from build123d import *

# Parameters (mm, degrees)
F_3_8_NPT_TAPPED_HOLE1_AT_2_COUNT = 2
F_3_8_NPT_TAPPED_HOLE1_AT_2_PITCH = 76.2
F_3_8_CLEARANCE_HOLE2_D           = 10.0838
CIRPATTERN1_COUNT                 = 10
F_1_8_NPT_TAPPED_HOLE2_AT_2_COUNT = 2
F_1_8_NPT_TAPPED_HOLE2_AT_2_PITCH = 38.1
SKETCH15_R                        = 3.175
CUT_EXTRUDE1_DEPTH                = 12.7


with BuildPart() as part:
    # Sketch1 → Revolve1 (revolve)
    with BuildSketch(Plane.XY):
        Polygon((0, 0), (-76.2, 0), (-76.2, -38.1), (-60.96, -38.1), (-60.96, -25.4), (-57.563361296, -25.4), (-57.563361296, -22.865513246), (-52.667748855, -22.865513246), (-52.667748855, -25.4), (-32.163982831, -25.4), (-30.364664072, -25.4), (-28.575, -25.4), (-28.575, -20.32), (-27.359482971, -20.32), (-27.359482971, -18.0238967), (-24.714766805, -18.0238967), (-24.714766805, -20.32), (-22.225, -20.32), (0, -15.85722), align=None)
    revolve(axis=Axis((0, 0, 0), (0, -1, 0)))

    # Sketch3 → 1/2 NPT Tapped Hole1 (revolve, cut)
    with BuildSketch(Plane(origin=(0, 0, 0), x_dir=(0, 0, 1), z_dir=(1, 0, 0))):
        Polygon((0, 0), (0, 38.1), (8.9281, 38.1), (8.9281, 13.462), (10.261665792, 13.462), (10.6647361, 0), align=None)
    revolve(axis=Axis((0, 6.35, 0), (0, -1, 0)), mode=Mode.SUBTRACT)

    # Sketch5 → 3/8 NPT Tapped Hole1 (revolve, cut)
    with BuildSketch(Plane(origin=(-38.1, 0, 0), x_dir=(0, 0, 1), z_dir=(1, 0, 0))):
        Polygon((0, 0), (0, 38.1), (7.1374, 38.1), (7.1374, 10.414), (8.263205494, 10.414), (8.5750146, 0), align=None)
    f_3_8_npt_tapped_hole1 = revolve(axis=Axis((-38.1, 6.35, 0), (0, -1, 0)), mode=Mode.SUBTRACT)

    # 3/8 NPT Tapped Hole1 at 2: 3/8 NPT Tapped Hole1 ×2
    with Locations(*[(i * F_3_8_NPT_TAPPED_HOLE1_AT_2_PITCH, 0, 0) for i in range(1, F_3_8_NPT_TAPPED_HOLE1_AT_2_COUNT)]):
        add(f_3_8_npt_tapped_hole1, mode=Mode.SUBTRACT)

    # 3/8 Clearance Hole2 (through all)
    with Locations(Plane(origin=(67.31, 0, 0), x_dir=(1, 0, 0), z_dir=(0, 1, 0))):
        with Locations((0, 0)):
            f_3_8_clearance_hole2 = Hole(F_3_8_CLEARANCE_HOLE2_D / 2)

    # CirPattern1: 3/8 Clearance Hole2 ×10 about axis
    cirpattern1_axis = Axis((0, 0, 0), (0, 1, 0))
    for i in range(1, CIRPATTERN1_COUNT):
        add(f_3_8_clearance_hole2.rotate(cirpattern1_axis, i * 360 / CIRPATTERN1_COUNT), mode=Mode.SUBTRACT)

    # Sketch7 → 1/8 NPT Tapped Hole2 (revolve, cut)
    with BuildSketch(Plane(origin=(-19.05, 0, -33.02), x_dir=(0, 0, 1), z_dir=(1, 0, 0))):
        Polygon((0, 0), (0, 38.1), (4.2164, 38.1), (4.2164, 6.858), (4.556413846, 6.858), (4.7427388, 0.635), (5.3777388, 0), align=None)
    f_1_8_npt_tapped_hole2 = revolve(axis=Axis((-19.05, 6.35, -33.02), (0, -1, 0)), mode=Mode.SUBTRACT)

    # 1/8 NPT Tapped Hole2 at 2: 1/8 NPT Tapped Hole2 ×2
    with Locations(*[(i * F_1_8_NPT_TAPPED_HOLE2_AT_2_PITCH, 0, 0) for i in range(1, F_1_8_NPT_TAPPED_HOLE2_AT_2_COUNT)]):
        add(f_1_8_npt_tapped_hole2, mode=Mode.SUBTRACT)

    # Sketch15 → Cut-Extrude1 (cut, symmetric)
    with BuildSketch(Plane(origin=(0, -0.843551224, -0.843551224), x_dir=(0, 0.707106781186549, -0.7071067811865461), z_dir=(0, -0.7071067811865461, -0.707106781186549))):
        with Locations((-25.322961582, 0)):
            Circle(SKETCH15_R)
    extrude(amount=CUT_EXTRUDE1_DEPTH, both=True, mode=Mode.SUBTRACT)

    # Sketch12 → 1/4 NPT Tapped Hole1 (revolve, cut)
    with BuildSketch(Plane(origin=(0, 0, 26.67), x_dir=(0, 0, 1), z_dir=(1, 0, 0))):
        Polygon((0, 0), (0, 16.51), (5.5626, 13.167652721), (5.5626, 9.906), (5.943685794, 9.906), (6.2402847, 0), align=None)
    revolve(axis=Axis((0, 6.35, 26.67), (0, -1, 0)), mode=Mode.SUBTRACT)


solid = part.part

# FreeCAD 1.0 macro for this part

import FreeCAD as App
import Part
import Sketcher
from FreeCAD import Vector
Q = App.Units.Quantity

doc = App.newDocument("Part")
body = doc.addObject("PartDesign::Body", "Body")

# Sketch on XY plane
sketch1 = doc.addObject("Sketcher::SketchObject", "Sketch")
body.addObject(sketch1)
sketch1.AttachmentSupport = (doc.XY_Plane, [""])
sketch1.MapMode = "FlatFace"
sketch1.addGeometry([
    Part.LineSegment(Vector(0, 0, 0), Vector(-76.2, 0, 0)),  # 0
    Part.LineSegment(Vector(-76.2, 0, 0), Vector(-76.2, -38.1, 0)),  # 1
    Part.LineSegment(Vector(-76.2, -38.1, 0), Vector(-60.96, -38.1, 0)),  # 2
    Part.LineSegment(Vector(-60.96, -38.1, 0), Vector(-60.96, -25.4, 0)),  # 3
    Part.LineSegment(Vector(-60.96, -25.4, 0), Vector(-57.563361, -25.4, 0)),  # 4
    Part.LineSegment(Vector(-57.563361, -25.4, 0), Vector(-57.563361, -22.865513, 0)),  # 5
    Part.LineSegment(Vector(-57.563361, -22.865513, 0), Vector(-52.667749, -22.865513, 0)),  # 6
    Part.LineSegment(Vector(-52.667749, -22.865513, 0), Vector(-52.667749, -25.4, 0)),  # 7
    Part.LineSegment(Vector(-52.667749, -25.4, 0), Vector(-28.575, -25.4, 0)),  # 8
    Part.LineSegment(Vector(-28.575, -25.4, 0), Vector(-28.575, -20.32, 0)),  # 9
    Part.LineSegment(Vector(-28.575, -20.32, 0), Vector(-27.359483, -20.32, 0)),  # 10
    Part.LineSegment(Vector(-27.359483, -20.32, 0), Vector(-27.359483, -18.023897, 0)),  # 11
    Part.LineSegment(Vector(-27.359483, -18.023897, 0), Vector(-24.714767, -18.023897, 0)),  # 12
    Part.LineSegment(Vector(-24.714767, -18.023897, 0), Vector(-24.714767, -20.32, 0)),  # 13
    Part.LineSegment(Vector(-24.714767, -20.32, 0), Vector(-22.225, -20.32, 0)),  # 14
    Part.LineSegment(Vector(-22.225, -20.32, 0), Vector(0, -15.85722, 0)),  # 15
    Part.LineSegment(Vector(0, -15.85722, 0), Vector(0, 0, 0)),  # 16
], False)
sketch1.addConstraint([
    Sketcher.Constraint("Coincident", 0, 2, 1, 1),
    Sketcher.Constraint("Coincident", 1, 2, 2, 1),
    Sketcher.Constraint("Coincident", 2, 2, 3, 1),
    Sketcher.Constraint("Coincident", 3, 2, 4, 1),
    Sketcher.Constraint("Coincident", 4, 2, 5, 1),
    Sketcher.Constraint("Coincident", 5, 2, 6, 1),
    Sketcher.Constraint("Coincident", 6, 2, 7, 1),
    Sketcher.Constraint("Coincident", 7, 2, 8, 1),
    Sketcher.Constraint("Coincident", 8, 2, 9, 1),
    Sketcher.Constraint("Coincident", 9, 2, 10, 1),
    Sketcher.Constraint("Coincident", 10, 2, 11, 1),
    Sketcher.Constraint("Coincident", 11, 2, 12, 1),
    Sketcher.Constraint("Coincident", 12, 2, 13, 1),
    Sketcher.Constraint("Coincident", 13, 2, 14, 1),
    Sketcher.Constraint("Coincident", 14, 2, 15, 1),
    Sketcher.Constraint("Coincident", 15, 2, 16, 1),
    Sketcher.Constraint("Coincident", 16, 2, 0, 1),
    Sketcher.Constraint("Horizontal", 0),
    Sketcher.Constraint("Vertical", 1),
    Sketcher.Constraint("Horizontal", 2),
    Sketcher.Constraint("Vertical", 3),
    Sketcher.Constraint("Horizontal", 4),
    Sketcher.Constraint("Vertical", 5),
    Sketcher.Constraint("Horizontal", 6),
    Sketcher.Constraint("Vertical", 7),
    Sketcher.Constraint("Horizontal", 8),
    Sketcher.Constraint("Vertical", 9),
    Sketcher.Constraint("Horizontal", 10),
    Sketcher.Constraint("Vertical", 11),
    Sketcher.Constraint("Horizontal", 12),
    Sketcher.Constraint("Vertical", 13),
    Sketcher.Constraint("Horizontal", 14),
    Sketcher.Constraint("Vertical", 16),
    Sketcher.Constraint("Coincident", 16, 2, -1, 1),
    Sketcher.Constraint("Horizontal", 4, 2, 7, 2),
    Sketcher.Constraint("Horizontal", 10, 2, 13, 2),
    Sketcher.Constraint("DistanceX", 0, 2, 0, 1, Q("3 in")),
    Sketcher.Constraint("DistanceX", 2, 1, 2, 2, Q("0.6 in")),
    Sketcher.Constraint("DistanceY", 1, 2, 1, 1, Q("1.5 in")),
    Sketcher.Constraint("DistanceY", 3, 1, 3, 2, Q("0.5 in")),
    Sketcher.Constraint("DistanceY", 9, 1, 9, 2, Q("0.2 in")),
    Sketcher.Constraint("DistanceX", 9, 2, 14, 2, Q("0.25 in")),
    Sketcher.Constraint("DistanceY", 16, 1, 16, 2, Q("0.6243 in")),
    Sketcher.Constraint("DistanceX", 8, 2, -1, 1, Q("1.125 in")),
    Sketcher.Constraint("DistanceX", 4, 1, 4, 2, Q("3.396639 mm")),
    Sketcher.Constraint("DistanceX", 8, 1, 8, 2, Q("24.092749 mm")),
    Sketcher.Constraint("DistanceX", 10, 1, 10, 2, Q("1.215517 mm")),
    Sketcher.Constraint("DistanceX", 12, 1, 12, 2, Q("2.644716 mm")),
    Sketcher.Constraint("DistanceY", 5, 1, 5, 2, Q("2.534487 mm")),
    Sketcher.Constraint("DistanceY", 11, 1, 11, 2, Q("2.296103 mm")),
])
revolution = doc.addObject("PartDesign::Revolution", "Revolution")
body.addObject(revolution)
revolution.Profile = sketch1
revolution.ReferenceAxis = (sketch1, ["V_Axis"])
revolution.Angle = 360

# Sketch on YZ plane
sketch2 = doc.addObject("Sketcher::SketchObject", "Sketch001")
body.addObject(sketch2)
sketch2.AttachmentSupport = (doc.YZ_Plane, [""])
sketch2.MapMode = "FlatFace"
sketch2.addGeometry([
    Part.LineSegment(Vector(-38.1, 0, 0), Vector(0, 0, 0)),  # 0
    Part.LineSegment(Vector(0, 0, 0), Vector(0, 10.664736, 0)),  # 1
    Part.LineSegment(Vector(0, 10.664736, 0), Vector(-13.462, 10.261666, 0)),  # 2
    Part.LineSegment(Vector(-13.462, 10.261666, 0), Vector(-13.462, 8.9281, 0)),  # 3
    Part.LineSegment(Vector(-13.462, 8.9281, 0), Vector(-38.1, 8.9281, 0)),  # 4
    Part.LineSegment(Vector(-38.1, 8.9281, 0), Vector(-38.1, 0, 0)),  # 5
], False)
sketch2.addConstraint([
    Sketcher.Constraint("Coincident", 0, 2, 1, 1),
    Sketcher.Constraint("Coincident", 1, 2, 2, 1),
    Sketcher.Constraint("Coincident", 2, 2, 3, 1),
    Sketcher.Constraint("Coincident", 3, 2, 4, 1),
    Sketcher.Constraint("Coincident", 4, 2, 5, 1),
    Sketcher.Constraint("Coincident", 5, 2, 0, 1),
    Sketcher.Constraint("Horizontal", 0),
    Sketcher.Constraint("Vertical", 1),
    Sketcher.Constraint("Vertical", 3),
    Sketcher.Constraint("Horizontal", 4),
    Sketcher.Constraint("Vertical", 5),
    Sketcher.Constraint("Coincident", 0, 2, -1, 1),
    Sketcher.Constraint("DistanceX", 0, 1, 0, 2, Q("1.5 in")),
    Sketcher.Constraint("DistanceX", 4, 2, 4, 1, Q("0.97 in")),
    Sketcher.Constraint("DistanceY", 5, 2, 5, 1, Q("0.3515 in")),
    Sketcher.Constraint("DistanceY", 1, 1, 1, 2, Q("10.664736 mm")),
    Sketcher.Constraint("DistanceY", 3, 2, 3, 1, Q("1.333566 mm")),
])
groove = doc.addObject("PartDesign::Groove", "Groove")
body.addObject(groove)
groove.Profile = sketch2
groove.ReferenceAxis = (sketch2, ["H_Axis"])
groove.Angle = 360

# Sketch on YZ plane
sketch3 = doc.addObject("Sketcher::SketchObject", "Sketch002")
body.addObject(sketch3)
sketch3.AttachmentSupport = (doc.YZ_Plane, [""])
sketch3.MapMode = "FlatFace"
sketch3.AttachmentOffset = App.Placement(Vector(0, 0, -1.5 * 25.4), App.Rotation())
sketch3.addGeometry([
    Part.LineSegment(Vector(-38.1, 0, 0), Vector(0, 0, 0)),  # 0
    Part.LineSegment(Vector(0, 0, 0), Vector(0, 8.575015, 0)),  # 1
    Part.LineSegment(Vector(0, 8.575015, 0), Vector(-10.414, 8.263205, 0)),  # 2
    Part.LineSegment(Vector(-10.414, 8.263205, 0), Vector(-10.414, 7.1374, 0)),  # 3
    Part.LineSegment(Vector(-10.414, 7.1374, 0), Vector(-38.1, 7.1374, 0)),  # 4
    Part.LineSegment(Vector(-38.1, 7.1374, 0), Vector(-38.1, 0, 0)),  # 5
], False)
sketch3.addConstraint([
    Sketcher.Constraint("Coincident", 0, 2, 1, 1),
    Sketcher.Constraint("Coincident", 1, 2, 2, 1),
    Sketcher.Constraint("Coincident", 2, 2, 3, 1),
    Sketcher.Constraint("Coincident", 3, 2, 4, 1),
    Sketcher.Constraint("Coincident", 4, 2, 5, 1),
    Sketcher.Constraint("Coincident", 5, 2, 0, 1),
    Sketcher.Constraint("Horizontal", 0),
    Sketcher.Constraint("Vertical", 1),
    Sketcher.Constraint("Vertical", 3),
    Sketcher.Constraint("Horizontal", 4),
    Sketcher.Constraint("Vertical", 5),
    Sketcher.Constraint("Coincident", 0, 2, -1, 1),
    Sketcher.Constraint("DistanceX", 0, 1, 0, 2, Q("1.5 in")),
    Sketcher.Constraint("DistanceX", 4, 2, 4, 1, Q("1.09 in")),
    Sketcher.Constraint("DistanceY", 5, 2, 5, 1, Q("0.281 in")),
    Sketcher.Constraint("DistanceY", 1, 1, 1, 2, Q("8.575015 mm")),
    Sketcher.Constraint("DistanceY", 3, 2, 3, 1, Q("1.125805 mm")),
])
groove2 = doc.addObject("PartDesign::Groove", "Groove001")
body.addObject(groove2)
groove2.Profile = sketch3
groove2.ReferenceAxis = (sketch3, ["H_Axis"])
groove2.Angle = 360
doc.recompute()

linearpattern = doc.addObject("PartDesign::LinearPattern", "LinearPattern")
body.addObject(linearpattern)
linearpattern.Originals = [groove2]
linearpattern.Direction = (doc.X_Axis, [""])
linearpattern.Mode = "offset"
linearpattern.Offset = Q("3 in")
linearpattern.Occurrences = 2
body.Tip = linearpattern

# Sketch on XZ plane
sketch4 = doc.addObject("Sketcher::SketchObject", "Sketch003")
body.addObject(sketch4)
sketch4.AttachmentSupport = (doc.XZ_Plane, [""])
sketch4.MapMode = "FlatFace"
sketch4.addGeometry(Part.Circle(Vector(67.31, 0, 0), Vector(0, 0, 1), 5.0419), False)
sketch4.addConstraint([
    Sketcher.Constraint("PointOnObject", 0, 3, -1),
    Sketcher.Constraint("Diameter", 0, Q("0.397 in")),
    Sketcher.Constraint("DistanceX", -1, 1, 0, 3, Q("2.65 in")),
])
doc.recompute()
hole = doc.addObject("PartDesign::Hole", "Hole")
body.addObject(hole)
hole.Profile = sketch4
hole.ThreadType = "None"
hole.Diameter = Q("0.397 in")
hole.DepthType = "ThroughAll"
hole.Reversed = True
doc.recompute()

polarpattern = doc.addObject("PartDesign::PolarPattern", "PolarPattern")
body.addObject(polarpattern)
polarpattern.Originals = [hole]
polarpattern.Axis = (doc.Y_Axis, [""])
polarpattern.Angle = 360
polarpattern.Occurrences = 10
body.Tip = polarpattern

# Sketch on YZ plane
sketch5 = doc.addObject("Sketcher::SketchObject", "Sketch004")
body.addObject(sketch5)
sketch5.AttachmentSupport = (doc.YZ_Plane, [""])
sketch5.MapMode = "FlatFace"
sketch5.AttachmentOffset = App.Placement(Vector(0, 0, -0.75 * 25.4), App.Rotation())
sketch5.addGeometry([
    Part.LineSegment(Vector(-38.1, -33.02, 0), Vector(0, -33.02, 0)),  # 0
    Part.LineSegment(Vector(0, -33.02, 0), Vector(0, -27.642261, 0)),  # 1
    Part.LineSegment(Vector(0, -27.642261, 0), Vector(-0.635, -28.277261, 0)),  # 2
    Part.LineSegment(Vector(-0.635, -28.277261, 0), Vector(-6.858, -28.463586, 0)),  # 3
    Part.LineSegment(Vector(-6.858, -28.463586, 0), Vector(-6.858, -28.8036, 0)),  # 4
    Part.LineSegment(Vector(-6.858, -28.8036, 0), Vector(-38.1, -28.8036, 0)),  # 5
    Part.LineSegment(Vector(-38.1, -28.8036, 0), Vector(-38.1, -33.02, 0)),  # 6
], False)
sketch5.addGeometry(Part.LineSegment(Vector(0, -33.02, 0), Vector(-38.1, -33.02, 0)), True)  # axis
sketch5.addConstraint([
    Sketcher.Constraint("Coincident", 0, 2, 1, 1),
    Sketcher.Constraint("Coincident", 1, 2, 2, 1),
    Sketcher.Constraint("Coincident", 2, 2, 3, 1),
    Sketcher.Constraint("Coincident", 3, 2, 4, 1),
    Sketcher.Constraint("Coincident", 4, 2, 5, 1),
    Sketcher.Constraint("Coincident", 5, 2, 6, 1),
    Sketcher.Constraint("Coincident", 6, 2, 0, 1),
    Sketcher.Constraint("Horizontal", 0),
    Sketcher.Constraint("Vertical", 1),
    Sketcher.Constraint("Vertical", 4),
    Sketcher.Constraint("Horizontal", 5),
    Sketcher.Constraint("Vertical", 6),
    Sketcher.Constraint("Horizontal", 7),
    Sketcher.Constraint("Coincident", 7, 1, 0, 2),
    Sketcher.Constraint("PointOnObject", 0, 2, -2),
    Sketcher.Constraint("Vertical", 5, 2, 7, 2),
    Sketcher.Constraint("DistanceX", 0, 1, 0, 2, Q("1.5 in")),
    Sketcher.Constraint("Angle", 2, Q("-135 deg")),
    Sketcher.Constraint("DistanceX", 5, 2, 5, 1, Q("1.23 in")),
    Sketcher.Constraint("DistanceY", 0, 2, -1, 1, Q("1.3 in")),
    Sketcher.Constraint("DistanceY", 6, 2, 6, 1, Q("0.166 in")),
    Sketcher.Constraint("DistanceX", 2, 2, -1, 1, Q("0.025 in")),
    Sketcher.Constraint("DistanceY", 1, 1, 1, 2, Q("5.377739 mm")),
    Sketcher.Constraint("Distance", 3, Q("6.225789 mm")),
])
groove3 = doc.addObject("PartDesign::Groove", "Groove002")
body.addObject(groove3)
groove3.Profile = sketch5
groove3.ReferenceAxis = (sketch5, ["Axis0"])
groove3.Angle = 360
doc.recompute()

linearpattern2 = doc.addObject("PartDesign::LinearPattern", "LinearPattern001")
body.addObject(linearpattern2)
linearpattern2.Originals = [groove3]
linearpattern2.Direction = (doc.X_Axis, [""])
linearpattern2.Mode = "offset"
linearpattern2.Offset = Q("1.5 in")
linearpattern2.Occurrences = 2
body.Tip = linearpattern2

# Sketch on an angled plane
sketch6 = doc.addObject("Sketcher::SketchObject", "Sketch005")
body.addObject(sketch6)
sketch6.Placement = App.Placement(Vector(0, -0.843551, -0.843551), App.Rotation(Vector(0, 0.707106781, -0.707106781), Vector(0.999999999, 0, 0), Vector(0, -0.707106781, -0.707106781), "ZXY"))
sketch6.addGeometry(Part.Circle(Vector(-25.322962, 0, 0), Vector(0, 0, 1), 3.175), False)
sketch6.addConstraint([
    Sketcher.Constraint("PointOnObject", 0, 3, -1),
    Sketcher.Constraint("Diameter", 0, Q("0.25 in")),
    Sketcher.Constraint("DistanceX", 0, 3, -1, 1, Q("25.322962 mm")),
])
pocket1 = doc.addObject("PartDesign::Pocket", "Pocket")
body.addObject(pocket1)
pocket1.Profile = sketch6
pocket1.Length = Q("1 in")
pocket1.Midplane = True

# Sketch on YZ plane
sketch7 = doc.addObject("Sketcher::SketchObject", "Sketch006")
body.addObject(sketch7)
sketch7.AttachmentSupport = (doc.YZ_Plane, [""])
sketch7.MapMode = "FlatFace"
sketch7.addGeometry([
    Part.LineSegment(Vector(-16.51, 26.67, 0), Vector(0, 26.67, 0)),  # 0
    Part.LineSegment(Vector(0, 26.67, 0), Vector(0, 32.910285, 0)),  # 1
    Part.LineSegment(Vector(0, 32.910285, 0), Vector(-9.906, 32.613686, 0)),  # 2
    Part.LineSegment(Vector(-9.906, 32.613686, 0), Vector(-9.906, 32.2326, 0)),  # 3
    Part.LineSegment(Vector(-9.906, 32.2326, 0), Vector(-13.167653, 32.2326, 0)),  # 4
    Part.LineSegment(Vector(-13.167653, 32.2326, 0), Vector(-16.51, 26.67, 0)),  # 5
], False)
sketch7.addGeometry(Part.LineSegment(Vector(0, 26.67, 0), Vector(-16.51, 26.67, 0)), True)  # axis
sketch7.addConstraint([
    Sketcher.Constraint("Coincident", 0, 2, 1, 1),
    Sketcher.Constraint("Coincident", 1, 2, 2, 1),
    Sketcher.Constraint("Coincident", 2, 2, 3, 1),
    Sketcher.Constraint("Coincident", 3, 2, 4, 1),
    Sketcher.Constraint("Coincident", 4, 2, 5, 1),
    Sketcher.Constraint("Coincident", 5, 2, 0, 1),
    Sketcher.Constraint("Horizontal", 0),
    Sketcher.Constraint("Vertical", 1),
    Sketcher.Constraint("Vertical", 3),
    Sketcher.Constraint("Horizontal", 4),
    Sketcher.Constraint("Horizontal", 6),
    Sketcher.Constraint("Coincident", 6, 1, 0, 2),
    Sketcher.Constraint("PointOnObject", 0, 2, -2),
    Sketcher.Constraint("Equal", 0, 6),
    Sketcher.Constraint("Angle", 5, Q("-121 deg")),
    Sketcher.Constraint("DistanceX", 0, 1, 0, 2, Q("0.65 in")),
    Sketcher.Constraint("DistanceY", -1, 1, 0, 2, Q("1.05 in")),
    Sketcher.Constraint("DistanceX", 2, 2, -1, 1, Q("0.39 in")),
    Sketcher.Constraint("DistanceY", -1, 1, 3, 2, Q("1.269 in")),
    Sketcher.Constraint("DistanceY", 2, 2, 1, 2, Q("0.296599 mm")),
    Sketcher.Constraint("DistanceY", 1, 1, 1, 2, Q("6.240285 mm")),
])
groove4 = doc.addObject("PartDesign::Groove", "Groove003")
body.addObject(groove4)
groove4.Profile = sketch7
groove4.ReferenceAxis = (sketch7, ["Axis0"])
groove4.Angle = 360

doc.recompute()
